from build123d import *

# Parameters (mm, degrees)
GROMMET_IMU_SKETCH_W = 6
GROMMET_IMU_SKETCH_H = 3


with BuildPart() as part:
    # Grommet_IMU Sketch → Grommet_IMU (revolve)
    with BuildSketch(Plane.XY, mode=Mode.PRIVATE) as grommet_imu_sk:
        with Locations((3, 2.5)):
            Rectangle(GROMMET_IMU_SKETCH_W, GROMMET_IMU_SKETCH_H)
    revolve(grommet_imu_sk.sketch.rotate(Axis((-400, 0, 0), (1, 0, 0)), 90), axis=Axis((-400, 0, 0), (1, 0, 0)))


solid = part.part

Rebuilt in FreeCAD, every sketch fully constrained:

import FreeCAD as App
import Part
import Sketcher
from FreeCAD import Vector

doc = App.newDocument("Part")
body = doc.addObject("PartDesign::Body", "Body")

# Sketch on XY plane
sketch1 = body.newObject("Sketcher::SketchObject", "Sketch")
sketch1.AttachmentSupport = (doc.getObject("XY_Plane"), [""])
sketch1.MapMode = "FlatFace"
sketch1.addGeometry(Part.LineSegment(Vector(0, 4, 0), Vector(0, 1, 0)), False)
sketch1.addGeometry(Part.LineSegment(Vector(0, 1, 0), Vector(6, 1, 0)), False)
sketch1.addGeometry(Part.LineSegment(Vector(6, 1, 0), Vector(6, 4, 0)), False)
sketch1.addGeometry(Part.LineSegment(Vector(6, 4, 0), Vector(0, 4, 0)), False)
sketch1.addConstraint(Sketcher.Constraint("Coincident", 0, 2, 1, 1))
sketch1.addConstraint(Sketcher.Constraint("Coincident", 1, 2, 2, 1))
sketch1.addConstraint(Sketcher.Constraint("Coincident", 2, 2, 3, 1))
sketch1.addConstraint(Sketcher.Constraint("Coincident", 3, 2, 0, 1))
sketch1.addConstraint(Sketcher.Constraint("Vertical", 0))
sketch1.addConstraint(Sketcher.Constraint("Horizontal", 1))
sketch1.addConstraint(Sketcher.Constraint("Vertical", 2))
sketch1.addConstraint(Sketcher.Constraint("Horizontal", 3))
sketch1.addConstraint(Sketcher.Constraint("PointOnObject", 0, 2, -2))
sketch1.addConstraint(Sketcher.Constraint("DistanceX", 1, 1, 1, 2, 6.0))
sketch1.addConstraint(Sketcher.Constraint("DistanceY", 0, 2, 0, 1, 3.0))
sketch1.addConstraint(Sketcher.Constraint("DistanceY", -1, 1, 0, 2, 1.0))
revolution = body.newObject("PartDesign::Revolution", "Revolution")
revolution.Profile = sketch1
revolution.ReferenceAxis = (sketch1, ["H_Axis"])
revolution.Angle = 360

doc.recompute()
